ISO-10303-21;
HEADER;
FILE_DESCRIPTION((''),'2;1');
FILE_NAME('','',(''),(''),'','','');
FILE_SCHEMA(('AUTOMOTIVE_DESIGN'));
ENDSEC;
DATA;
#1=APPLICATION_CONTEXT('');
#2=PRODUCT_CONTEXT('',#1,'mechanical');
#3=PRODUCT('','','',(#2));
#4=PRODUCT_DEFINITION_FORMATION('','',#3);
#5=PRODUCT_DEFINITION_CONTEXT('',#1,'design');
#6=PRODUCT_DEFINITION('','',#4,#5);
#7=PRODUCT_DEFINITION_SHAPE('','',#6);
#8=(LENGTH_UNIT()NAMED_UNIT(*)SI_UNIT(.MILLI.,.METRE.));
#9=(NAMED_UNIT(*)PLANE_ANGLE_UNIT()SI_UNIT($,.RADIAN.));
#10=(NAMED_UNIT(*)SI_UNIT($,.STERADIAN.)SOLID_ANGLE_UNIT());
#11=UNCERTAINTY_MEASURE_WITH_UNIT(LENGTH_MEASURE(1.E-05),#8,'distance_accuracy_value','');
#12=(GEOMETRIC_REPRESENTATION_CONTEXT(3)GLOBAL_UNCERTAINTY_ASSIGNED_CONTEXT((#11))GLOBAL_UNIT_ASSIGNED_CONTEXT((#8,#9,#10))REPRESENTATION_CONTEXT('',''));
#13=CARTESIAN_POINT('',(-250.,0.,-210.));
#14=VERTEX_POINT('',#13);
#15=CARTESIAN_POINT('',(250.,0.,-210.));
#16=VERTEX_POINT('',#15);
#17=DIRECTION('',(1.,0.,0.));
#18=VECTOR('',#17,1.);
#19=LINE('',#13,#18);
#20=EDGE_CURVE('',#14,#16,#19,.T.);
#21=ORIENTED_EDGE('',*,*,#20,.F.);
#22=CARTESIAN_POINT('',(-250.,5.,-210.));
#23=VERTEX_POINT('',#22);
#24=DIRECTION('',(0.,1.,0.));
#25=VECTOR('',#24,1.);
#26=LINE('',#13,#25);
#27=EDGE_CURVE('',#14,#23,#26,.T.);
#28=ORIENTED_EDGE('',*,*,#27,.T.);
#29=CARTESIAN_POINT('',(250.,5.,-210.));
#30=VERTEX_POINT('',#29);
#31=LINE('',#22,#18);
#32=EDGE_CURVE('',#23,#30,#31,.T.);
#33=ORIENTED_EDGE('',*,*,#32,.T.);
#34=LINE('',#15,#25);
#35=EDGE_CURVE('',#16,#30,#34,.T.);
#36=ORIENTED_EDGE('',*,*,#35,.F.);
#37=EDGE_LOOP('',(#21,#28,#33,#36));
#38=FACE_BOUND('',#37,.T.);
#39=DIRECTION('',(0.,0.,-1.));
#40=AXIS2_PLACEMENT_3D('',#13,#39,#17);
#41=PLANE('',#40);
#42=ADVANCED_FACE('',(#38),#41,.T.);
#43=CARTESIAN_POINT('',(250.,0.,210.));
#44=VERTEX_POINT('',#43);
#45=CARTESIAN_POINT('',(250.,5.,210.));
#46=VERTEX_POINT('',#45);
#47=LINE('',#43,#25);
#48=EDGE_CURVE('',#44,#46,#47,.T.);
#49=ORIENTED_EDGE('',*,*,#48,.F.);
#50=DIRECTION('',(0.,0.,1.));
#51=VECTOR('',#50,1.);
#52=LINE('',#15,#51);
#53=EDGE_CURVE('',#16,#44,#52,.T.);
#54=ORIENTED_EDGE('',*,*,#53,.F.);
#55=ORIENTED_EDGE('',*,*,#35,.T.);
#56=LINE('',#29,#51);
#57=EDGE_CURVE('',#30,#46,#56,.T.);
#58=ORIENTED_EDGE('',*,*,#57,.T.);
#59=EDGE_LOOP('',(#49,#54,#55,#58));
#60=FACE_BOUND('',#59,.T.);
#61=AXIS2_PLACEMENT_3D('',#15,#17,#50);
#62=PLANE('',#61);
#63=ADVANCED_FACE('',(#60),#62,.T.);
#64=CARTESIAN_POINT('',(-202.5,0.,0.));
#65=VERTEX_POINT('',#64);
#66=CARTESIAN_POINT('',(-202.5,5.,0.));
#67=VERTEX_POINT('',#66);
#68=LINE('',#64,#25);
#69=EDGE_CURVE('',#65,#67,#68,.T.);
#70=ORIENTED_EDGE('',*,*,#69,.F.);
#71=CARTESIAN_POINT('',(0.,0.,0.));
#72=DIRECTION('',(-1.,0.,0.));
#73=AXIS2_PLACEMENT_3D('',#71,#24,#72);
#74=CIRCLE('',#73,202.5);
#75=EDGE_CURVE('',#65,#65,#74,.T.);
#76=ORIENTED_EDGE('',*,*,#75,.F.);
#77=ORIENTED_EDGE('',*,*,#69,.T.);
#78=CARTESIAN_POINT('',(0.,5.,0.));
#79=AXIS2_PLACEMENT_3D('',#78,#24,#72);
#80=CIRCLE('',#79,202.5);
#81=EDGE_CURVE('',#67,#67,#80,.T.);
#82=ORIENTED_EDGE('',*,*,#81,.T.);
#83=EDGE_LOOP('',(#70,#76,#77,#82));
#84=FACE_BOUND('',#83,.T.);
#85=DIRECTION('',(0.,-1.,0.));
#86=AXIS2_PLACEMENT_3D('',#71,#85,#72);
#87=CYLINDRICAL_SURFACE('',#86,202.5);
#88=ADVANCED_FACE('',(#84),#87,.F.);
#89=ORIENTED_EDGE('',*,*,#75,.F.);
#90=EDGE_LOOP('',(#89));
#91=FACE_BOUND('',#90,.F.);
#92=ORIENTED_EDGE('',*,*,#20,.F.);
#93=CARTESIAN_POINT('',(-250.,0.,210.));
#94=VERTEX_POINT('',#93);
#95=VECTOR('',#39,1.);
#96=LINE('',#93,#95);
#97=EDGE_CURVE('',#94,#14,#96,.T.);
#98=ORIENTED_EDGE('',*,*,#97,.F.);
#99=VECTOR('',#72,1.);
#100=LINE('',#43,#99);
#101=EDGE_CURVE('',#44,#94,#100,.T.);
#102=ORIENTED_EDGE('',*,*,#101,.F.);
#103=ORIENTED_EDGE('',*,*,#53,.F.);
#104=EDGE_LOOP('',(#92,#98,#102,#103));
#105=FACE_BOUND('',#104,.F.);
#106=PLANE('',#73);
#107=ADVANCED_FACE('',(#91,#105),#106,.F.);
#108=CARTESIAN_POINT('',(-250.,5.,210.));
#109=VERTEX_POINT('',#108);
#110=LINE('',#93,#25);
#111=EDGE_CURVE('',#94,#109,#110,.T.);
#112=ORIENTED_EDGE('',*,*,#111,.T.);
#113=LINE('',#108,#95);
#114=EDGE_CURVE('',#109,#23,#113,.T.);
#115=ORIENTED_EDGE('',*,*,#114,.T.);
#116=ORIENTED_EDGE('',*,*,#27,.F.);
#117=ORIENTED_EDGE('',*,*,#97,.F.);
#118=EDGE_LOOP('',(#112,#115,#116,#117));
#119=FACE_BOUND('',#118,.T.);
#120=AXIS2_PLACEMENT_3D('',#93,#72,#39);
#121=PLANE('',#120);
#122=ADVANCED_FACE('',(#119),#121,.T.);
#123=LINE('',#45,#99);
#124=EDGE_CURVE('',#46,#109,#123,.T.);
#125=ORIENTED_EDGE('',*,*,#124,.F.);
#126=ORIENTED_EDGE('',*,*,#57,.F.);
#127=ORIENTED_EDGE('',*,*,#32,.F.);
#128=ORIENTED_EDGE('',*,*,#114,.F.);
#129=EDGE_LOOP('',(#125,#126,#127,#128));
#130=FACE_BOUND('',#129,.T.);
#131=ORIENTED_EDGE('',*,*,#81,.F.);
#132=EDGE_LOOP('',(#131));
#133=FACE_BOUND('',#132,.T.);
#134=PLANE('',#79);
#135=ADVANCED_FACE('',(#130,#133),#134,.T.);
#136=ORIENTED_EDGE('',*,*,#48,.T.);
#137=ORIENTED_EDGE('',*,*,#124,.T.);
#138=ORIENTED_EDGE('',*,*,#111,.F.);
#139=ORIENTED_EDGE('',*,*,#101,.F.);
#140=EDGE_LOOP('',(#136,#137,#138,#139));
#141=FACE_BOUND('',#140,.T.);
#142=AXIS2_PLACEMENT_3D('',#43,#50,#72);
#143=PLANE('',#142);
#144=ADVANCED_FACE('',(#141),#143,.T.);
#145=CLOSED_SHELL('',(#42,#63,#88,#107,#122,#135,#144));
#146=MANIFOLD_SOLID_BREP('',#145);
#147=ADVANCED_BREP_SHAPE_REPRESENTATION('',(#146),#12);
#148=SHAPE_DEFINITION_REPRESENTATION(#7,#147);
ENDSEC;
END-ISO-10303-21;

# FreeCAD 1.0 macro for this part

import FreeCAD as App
import Part
import Sketcher

doc = App.newDocument("Part")
body = doc.addObject("PartDesign::Body", "Body")

# Sketch on XZ plane
sketch1 = doc.addObject("Sketcher::SketchObject", "Sketch")
body.addObject(sketch1)
sketch1.AttachmentSupport = (doc.XZ_Plane, [""])
sketch1.MapMode = "FlatFace"
sketch1.addGeometry([
    Part.LineSegment(App.Vector(-250, 210, 0), App.Vector(250, 210, 0)),  # 0
    Part.LineSegment(App.Vector(250, 210, 0), App.Vector(250, -210, 0)),  # 1
    Part.LineSegment(App.Vector(250, -210, 0), App.Vector(-250, -210, 0)),  # 2
    Part.LineSegment(App.Vector(-250, -210, 0), App.Vector(-250, 210, 0)),  # 3
    Part.Circle(App.Vector(0, 0, 0), App.Vector(0, 0, 1), 202),  # 4
], False)
sketch1.addConstraint([
    Sketcher.Constraint("Coincident", 0, 2, 1, 1),
    Sketcher.Constraint("Coincident", 1, 2, 2, 1),
    Sketcher.Constraint("Coincident", 2, 2, 3, 1),
    Sketcher.Constraint("Coincident", 3, 2, 0, 1),
    Sketcher.Constraint("Horizontal", 0),
    Sketcher.Constraint("Vertical", 1),
    Sketcher.Constraint("Horizontal", 2),
    Sketcher.Constraint("Vertical", 3),
    Sketcher.Constraint("Coincident", 4, 3, -1, 1),
    Sketcher.Constraint("Symmetric", 0, 2, 2, 2, -1, 1),
    Sketcher.Constraint("Diameter", 4, 405.0),
    Sketcher.Constraint("DistanceX", 0, 1, 0, 2, 500.0),
    Sketcher.Constraint("DistanceY", 1, 2, 1, 1, 420.0),
])
pad1 = doc.addObject("PartDesign::Pad", "Pad")
body.addObject(pad1)
pad1.Profile = sketch1
pad1.Length = 5
pad1.Reversed = True

doc.recompute()
